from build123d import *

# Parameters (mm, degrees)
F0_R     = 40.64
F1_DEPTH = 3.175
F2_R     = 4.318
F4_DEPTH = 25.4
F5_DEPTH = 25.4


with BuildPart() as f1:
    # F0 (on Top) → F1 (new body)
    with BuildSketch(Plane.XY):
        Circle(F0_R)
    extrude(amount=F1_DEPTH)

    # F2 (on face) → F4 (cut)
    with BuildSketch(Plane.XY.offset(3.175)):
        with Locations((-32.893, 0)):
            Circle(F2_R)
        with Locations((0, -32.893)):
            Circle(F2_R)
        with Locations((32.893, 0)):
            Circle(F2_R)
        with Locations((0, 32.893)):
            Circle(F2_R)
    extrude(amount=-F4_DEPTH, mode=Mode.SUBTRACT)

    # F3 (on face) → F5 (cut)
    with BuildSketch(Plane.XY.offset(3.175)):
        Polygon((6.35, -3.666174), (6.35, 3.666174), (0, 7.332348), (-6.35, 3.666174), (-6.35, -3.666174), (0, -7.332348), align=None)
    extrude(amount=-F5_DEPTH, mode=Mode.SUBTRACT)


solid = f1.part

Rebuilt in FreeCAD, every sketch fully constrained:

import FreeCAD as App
import Part
import Sketcher

V = App.Vector
Q = App.Units.Quantity

doc = App.newDocument("Part")
body = doc.addObject("PartDesign::Body", "Body")

sketch1 = body.newObject("Sketcher::SketchObject", "Sketch")
sketch1.AttachmentSupport = (doc.getObject("XY_Plane"), [""])
sketch1.MapMode = "FlatFace"
sketch1.addGeometry(Part.Circle(V(0, 0, 0), V(0, 0, 1), 41), False)
sketch1.addConstraint(Sketcher.Constraint("Coincident", 0, 3, -1, 1))
sketch1.addConstraint(Sketcher.Constraint("Diameter", 0, Q("3.2 in")))
pad1 = body.newObject("PartDesign::Pad", "Pad")
pad1.Profile = sketch1
pad1.Length = Q("0.125 in")

sketch2 = body.newObject("Sketcher::SketchObject", "Sketch001")
sketch2.AttachmentSupport = (doc.getObject("XY_Plane"), [""])
sketch2.MapMode = "FlatFace"
sketch2.AttachmentOffset = App.Placement(V(0, 0, 0.125 * 25.4), App.Rotation())
sketch2.addGeometry(Part.Circle(V(-32.9, 0, 0), V(0, 0, 1), 4.3), False)
sketch2.addGeometry(Part.Circle(V(0, -32.9, 0), V(0, 0, 1), 4.3), False)
sketch2.addGeometry(Part.Circle(V(32.9, 0, 0), V(0, 0, 1), 4.3), False)
sketch2.addGeometry(Part.Circle(V(0, 32.9, 0), V(0, 0, 1), 4.3), False)
sketch2.addConstraint(Sketcher.Constraint("Equal", 0, 1))
sketch2.addConstraint(Sketcher.Constraint("Equal", 1, 2))
sketch2.addConstraint(Sketcher.Constraint("Equal", 2, 3))
sketch2.addConstraint(Sketcher.Constraint("Symmetric", 0, 3, 2, 3, -1, 1))
sketch2.addConstraint(Sketcher.Constraint("Symmetric", 1, 3, 3, 3, -1, 1))
sketch2.addConstraint(Sketcher.Constraint("PointOnObject", 0, 3, -1))
sketch2.addConstraint(Sketcher.Constraint("PointOnObject", 1, 3, -2))
sketch2.addConstraint(Sketcher.Constraint("Diameter", 0, Q("0.34 in")))
sketch2.addConstraint(Sketcher.Constraint("DistanceX", 0, 3, 2, 3, Q("2.59 in")))
sketch2.addConstraint(Sketcher.Constraint("DistanceY", 1, 3, 3, 3, Q("2.59 in")))
pocket1 = body.newObject("PartDesign::Pocket", "Pocket")
pocket1.Profile = sketch2
pocket1.Length = Q("1 in")

sketch3 = body.newObject("Sketcher::SketchObject", "Sketch002")
sketch3.AttachmentSupport = (doc.getObject("XY_Plane"), [""])
sketch3.MapMode = "FlatFace"
sketch3.AttachmentOffset = App.Placement(V(0, 0, 0.125 * 25.4), App.Rotation())
sketch3.addGeometry(Part.LineSegment(V(6, -4, 0), V(6, 4, 0)), False)
sketch3.addGeometry(Part.LineSegment(V(6, 4, 0), V(0, 7, 0)), False)
sketch3.addGeometry(Part.LineSegment(V(0, 7, 0), V(-6, 4, 0)), False)
sketch3.addGeometry(Part.LineSegment(V(-6, 4, 0), V(-6, -4, 0)), False)
sketch3.addGeometry(Part.LineSegment(V(-6, -4, 0), V(0, -7, 0)), False)
sketch3.addGeometry(Part.LineSegment(V(0, -7, 0), V(6, -4, 0)), False)
sketch3.addConstraint(Sketcher.Constraint("Coincident", 0, 2, 1, 1))
sketch3.addConstraint(Sketcher.Constraint("Coincident", 1, 2, 2, 1))
sketch3.addConstraint(Sketcher.Constraint("Coincident", 2, 2, 3, 1))
sketch3.addConstraint(Sketcher.Constraint("Coincident", 3, 2, 4, 1))
sketch3.addConstraint(Sketcher.Constraint("Coincident", 4, 2, 5, 1))
sketch3.addConstraint(Sketcher.Constraint("Coincident", 5, 2, 0, 1))
sketch3.addConstraint(Sketcher.Constraint("Vertical", 0))
sketch3.addConstraint(Sketcher.Constraint("Vertical", 3))
sketch3.addConstraint(Sketcher.Constraint("Symmetric", 0, 2, 3, 2, -1, 1))
sketch3.addConstraint(Sketcher.Constraint("Symmetric", 1, 2, 4, 2, -1, 1))
sketch3.addConstraint(Sketcher.Constraint("PointOnObject", 1, 2, -2))
sketch3.addConstraint(Sketcher.Constraint("Parallel", 2, 5))
sketch3.addConstraint(Sketcher.Constraint("Horizontal", 0, 2, 2, 2))
sketch3.addConstraint(Sketcher.Constraint("Angle", 1, Q("150.000001 deg")))
sketch3.addConstraint(Sketcher.Constraint("DistanceX", 2, 2, 0, 2, Q("0.5 in")))
sketch3.addConstraint(Sketcher.Constraint("DistanceY", 0, 1, 0, 2, Q("7.332348 mm")))
pocket2 = body.newObject("PartDesign::Pocket", "Pocket001")
pocket2.Profile = sketch3
pocket2.Length = Q("1 in")

doc.recompute()
